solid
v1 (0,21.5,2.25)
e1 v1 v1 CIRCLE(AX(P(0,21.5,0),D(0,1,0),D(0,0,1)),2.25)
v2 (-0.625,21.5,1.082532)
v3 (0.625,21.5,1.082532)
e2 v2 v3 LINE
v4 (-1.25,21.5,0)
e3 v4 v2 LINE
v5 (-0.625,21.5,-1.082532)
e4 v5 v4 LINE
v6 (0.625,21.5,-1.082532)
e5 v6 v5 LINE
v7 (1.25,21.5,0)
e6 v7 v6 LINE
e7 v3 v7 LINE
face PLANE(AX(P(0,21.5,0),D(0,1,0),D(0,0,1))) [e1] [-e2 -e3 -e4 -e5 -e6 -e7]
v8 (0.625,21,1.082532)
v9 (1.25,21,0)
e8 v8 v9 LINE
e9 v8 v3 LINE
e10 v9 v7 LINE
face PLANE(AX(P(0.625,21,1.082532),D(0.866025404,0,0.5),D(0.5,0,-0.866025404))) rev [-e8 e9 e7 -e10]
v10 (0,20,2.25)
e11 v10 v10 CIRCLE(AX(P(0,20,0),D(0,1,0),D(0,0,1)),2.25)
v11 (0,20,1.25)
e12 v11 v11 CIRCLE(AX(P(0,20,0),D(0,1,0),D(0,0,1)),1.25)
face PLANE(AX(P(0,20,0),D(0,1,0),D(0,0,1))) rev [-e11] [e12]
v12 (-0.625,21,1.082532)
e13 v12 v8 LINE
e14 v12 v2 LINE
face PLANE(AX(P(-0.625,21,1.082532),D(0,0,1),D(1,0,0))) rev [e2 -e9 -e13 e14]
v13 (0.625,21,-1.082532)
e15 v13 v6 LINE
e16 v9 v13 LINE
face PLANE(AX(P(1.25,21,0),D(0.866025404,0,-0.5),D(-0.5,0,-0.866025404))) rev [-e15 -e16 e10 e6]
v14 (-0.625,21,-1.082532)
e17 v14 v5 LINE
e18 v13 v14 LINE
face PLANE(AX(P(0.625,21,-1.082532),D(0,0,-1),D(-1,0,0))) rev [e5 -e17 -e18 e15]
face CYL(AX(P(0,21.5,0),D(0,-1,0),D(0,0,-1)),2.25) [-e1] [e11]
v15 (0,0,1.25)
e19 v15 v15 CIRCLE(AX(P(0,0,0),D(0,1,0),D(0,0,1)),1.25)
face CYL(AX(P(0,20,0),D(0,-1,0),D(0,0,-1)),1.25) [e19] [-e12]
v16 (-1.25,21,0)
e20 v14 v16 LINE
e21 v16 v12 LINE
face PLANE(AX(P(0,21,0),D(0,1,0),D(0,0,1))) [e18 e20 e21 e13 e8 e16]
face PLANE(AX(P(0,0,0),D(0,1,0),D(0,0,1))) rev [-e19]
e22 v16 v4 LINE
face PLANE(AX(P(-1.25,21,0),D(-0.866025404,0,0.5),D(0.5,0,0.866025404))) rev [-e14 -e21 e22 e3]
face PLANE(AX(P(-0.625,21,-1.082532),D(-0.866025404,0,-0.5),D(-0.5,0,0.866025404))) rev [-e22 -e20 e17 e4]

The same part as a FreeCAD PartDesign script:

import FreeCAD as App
import Part
import Sketcher
Q = App.Units.Quantity


def add_polygon(sketch, points):
    """Adds a closed chain of lines whose ends are joined by coincident constraints."""
    first, n = sketch.GeometryCount, len(points)
    for a, b in zip(points, points[1:] + points[:1]):
        sketch.addGeometry(Part.LineSegment(App.Vector(*a, 0), App.Vector(*b, 0)), False)
    for i in range(n):
        sketch.addConstraint(Sketcher.Constraint("Coincident", first + i, 2, first + (i + 1) % n, 1))

doc = App.newDocument("Part")
body = doc.addObject("PartDesign::Body", "Body")

# Sketch on XZ plane
sketch1 = body.newObject("Sketcher::SketchObject", "Sketch")
sketch1.AttachmentSupport = (doc.getObject("XZ_Plane"), [""])
sketch1.MapMode = "FlatFace"
sketch1.addGeometry(Part.Circle(App.Vector(0, 0, 0), App.Vector(0, 0, 1), 1.25), False)
sketch1.addConstraint([
    Sketcher.Constraint("Coincident", 0, 3, -1, 1),
    Sketcher.Constraint("Diameter", 0, Q("2.5 mm")),
])
pad1 = body.newObject("PartDesign::Pad", "Pad")
pad1.Profile = sketch1
pad1.Length = 20
pad1.Reversed = True

# Sketch on XZ plane
sketch2 = body.newObject("Sketcher::SketchObject", "Sketch001")
sketch2.AttachmentSupport = (doc.getObject("XZ_Plane"), [""])
sketch2.MapMode = "FlatFace"
sketch2.AttachmentOffset = App.Placement(App.Vector(0, 0, -20), App.Rotation())
sketch2.addGeometry(Part.Circle(App.Vector(0, 0, 0), App.Vector(0, 0, 1), 2.25), False)
sketch2.addConstraint([
    Sketcher.Constraint("Coincident", 0, 3, -1, 1),
    Sketcher.Constraint("Diameter", 0, Q("4.5 mm")),
])
pad2 = body.newObject("PartDesign::Pad", "Pad001")
pad2.Profile = sketch2
pad2.Length = 1.5
pad2.Reversed = True

# Sketch on XZ plane
sketch3 = body.newObject("Sketcher::SketchObject", "Sketch002")
sketch3.AttachmentSupport = (doc.getObject("XZ_Plane"), [""])
sketch3.MapMode = "FlatFace"
sketch3.AttachmentOffset = App.Placement(App.Vector(0, 0, -21.5), App.Rotation())
add_polygon(sketch3, [(1.25, 0), (0.625, -1.082532), (-0.625, -1.082532), (-1.25, 0), (-0.625, 1.082532), (0.625, 1.082532)])  # lines 0-5
sketch3.addConstraint([
    Sketcher.Constraint("Horizontal", 1),
    Sketcher.Constraint("Horizontal", 4),
    Sketcher.Constraint("Symmetric", 0, 2, 3, 2, -1, 1),
    Sketcher.Constraint("Symmetric", 2, 2, 5, 2, -1, 1),
    Sketcher.Constraint("PointOnObject", 2, 2, -1),
    Sketcher.Constraint("Parallel", 2, 5),
    Sketcher.Constraint("Vertical", 1, 2, 3, 2),
    Sketcher.Constraint("Angle", 0, Q("-120 deg")),
    Sketcher.Constraint("DistanceX", 1, 2, 1, 1, Q("1.25 mm")),
    Sketcher.Constraint("DistanceX", 2, 2, 5, 2, Q("2.5 mm")),
])
pocket1 = body.newObject("PartDesign::Pocket", "Pocket")
pocket1.Profile = sketch3
pocket1.Length = 0.5
pocket1.Reversed = True

doc.recompute()
